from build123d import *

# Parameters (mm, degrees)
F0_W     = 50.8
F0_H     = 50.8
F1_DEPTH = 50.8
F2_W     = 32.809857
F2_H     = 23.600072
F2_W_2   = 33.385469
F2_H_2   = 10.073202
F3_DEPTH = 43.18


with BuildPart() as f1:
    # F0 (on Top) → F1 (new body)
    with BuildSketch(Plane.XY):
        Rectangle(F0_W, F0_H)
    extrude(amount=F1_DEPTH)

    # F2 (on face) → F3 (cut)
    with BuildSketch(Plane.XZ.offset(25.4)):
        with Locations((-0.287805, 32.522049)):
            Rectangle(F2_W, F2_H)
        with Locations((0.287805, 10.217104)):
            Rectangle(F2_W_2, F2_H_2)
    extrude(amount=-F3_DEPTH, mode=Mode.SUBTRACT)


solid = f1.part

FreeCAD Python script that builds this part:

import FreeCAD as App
import Part
import Sketcher
Q = App.Units.Quantity

doc = App.newDocument("Part")
body = doc.addObject("PartDesign::Body", "Body")

# Sketch on XY plane
sketch1 = body.newObject("Sketcher::SketchObject", "Sketch")
sketch1.AttachmentSupport = (doc.getObject("XY_Plane"), [""])
sketch1.MapMode = "FlatFace"
sketch1.addGeometry([
    Part.LineSegment(App.Vector(-25, 25, 0), App.Vector(-25, -25, 0)),
    Part.LineSegment(App.Vector(-25, -25, 0), App.Vector(25, -25, 0)),
    Part.LineSegment(App.Vector(25, -25, 0), App.Vector(25, 25, 0)),
    Part.LineSegment(App.Vector(25, 25, 0), App.Vector(-25, 25, 0)),
], False)
sketch1.addConstraint([
    Sketcher.Constraint("Coincident", 0, 2, 1, 1),
    Sketcher.Constraint("Coincident", 1, 2, 2, 1),
    Sketcher.Constraint("Coincident", 2, 2, 3, 1),
    Sketcher.Constraint("Coincident", 3, 2, 0, 1),
    Sketcher.Constraint("Vertical", 0),
    Sketcher.Constraint("Horizontal", 1),
    Sketcher.Constraint("Vertical", 2),
    Sketcher.Constraint("Horizontal", 3),
    Sketcher.Constraint("Symmetric", 0, 2, 2, 2, -1, 1),
    Sketcher.Constraint("Equal", 3, 0),
    Sketcher.Constraint("DistanceX", 1, 1, 1, 2, Q("2 in")),
])
pad1 = body.newObject("PartDesign::Pad", "Pad")
pad1.Profile = sketch1
pad1.Length = Q("2 in")

# Sketch on XZ plane
sketch2 = body.newObject("Sketcher::SketchObject", "Sketch001")
sketch2.AttachmentSupport = (doc.getObject("XZ_Plane"), [""])
sketch2.MapMode = "FlatFace"
sketch2.AttachmentOffset = App.Placement(App.Vector(0, 0, 1 * 25.4), App.Rotation())
sketch2.addGeometry([
    Part.LineSegment(App.Vector(-17, 44, 0), App.Vector(-17, 21, 0)),  # 0
    Part.LineSegment(App.Vector(-17, 21, 0), App.Vector(16, 21, 0)),  # 1
    Part.LineSegment(App.Vector(16, 21, 0), App.Vector(16, 44, 0)),  # 2
    Part.LineSegment(App.Vector(16, 44, 0), App.Vector(-17, 44, 0)),  # 3
    Part.LineSegment(App.Vector(-16, 15, 0), App.Vector(-16, 5, 0)),  # 4
    Part.LineSegment(App.Vector(-16, 5, 0), App.Vector(17, 5, 0)),  # 5
    Part.LineSegment(App.Vector(17, 5, 0), App.Vector(17, 15, 0)),  # 6
    Part.LineSegment(App.Vector(17, 15, 0), App.Vector(-16, 15, 0)),  # 7
], False)
sketch2.addConstraint([
    Sketcher.Constraint("Coincident", 0, 2, 1, 1),
    Sketcher.Constraint("Coincident", 1, 2, 2, 1),
    Sketcher.Constraint("Coincident", 2, 2, 3, 1),
    Sketcher.Constraint("Coincident", 3, 2, 0, 1),
    Sketcher.Constraint("Coincident", 4, 2, 5, 1),
    Sketcher.Constraint("Coincident", 5, 2, 6, 1),
    Sketcher.Constraint("Coincident", 6, 2, 7, 1),
    Sketcher.Constraint("Coincident", 7, 2, 4, 1),
    Sketcher.Constraint("Vertical", 0),
    Sketcher.Constraint("Horizontal", 1),
    Sketcher.Constraint("Vertical", 2),
    Sketcher.Constraint("Horizontal", 3),
    Sketcher.Constraint("Vertical", 4),
    Sketcher.Constraint("Horizontal", 5),
    Sketcher.Constraint("Vertical", 6),
    Sketcher.Constraint("Horizontal", 7),
    Sketcher.Constraint("DistanceX", 5, 1, 5, 2, 33.385469),
    Sketcher.Constraint("DistanceX", 1, 1, 1, 2, 32.809857),
    Sketcher.Constraint("DistanceY", 0, 2, 0, 1, 23.600072),
    Sketcher.Constraint("DistanceY", 4, 2, 4, 1, 10.073202),
    Sketcher.Constraint("DistanceX", 4, 2, -1, 1, 16.40493),
    Sketcher.Constraint("DistanceY", 4, 2, 0, 2, 15.54151),
    Sketcher.Constraint("DistanceX", 0, 2, -1, 1, 16.692733),
    Sketcher.Constraint("DistanceY", -1, 1, 0, 2, 20.722013),
])
pocket1 = body.newObject("PartDesign::Pocket", "Pocket")
pocket1.Profile = sketch2
pocket1.Length = Q("1.7 in")

doc.recompute()
